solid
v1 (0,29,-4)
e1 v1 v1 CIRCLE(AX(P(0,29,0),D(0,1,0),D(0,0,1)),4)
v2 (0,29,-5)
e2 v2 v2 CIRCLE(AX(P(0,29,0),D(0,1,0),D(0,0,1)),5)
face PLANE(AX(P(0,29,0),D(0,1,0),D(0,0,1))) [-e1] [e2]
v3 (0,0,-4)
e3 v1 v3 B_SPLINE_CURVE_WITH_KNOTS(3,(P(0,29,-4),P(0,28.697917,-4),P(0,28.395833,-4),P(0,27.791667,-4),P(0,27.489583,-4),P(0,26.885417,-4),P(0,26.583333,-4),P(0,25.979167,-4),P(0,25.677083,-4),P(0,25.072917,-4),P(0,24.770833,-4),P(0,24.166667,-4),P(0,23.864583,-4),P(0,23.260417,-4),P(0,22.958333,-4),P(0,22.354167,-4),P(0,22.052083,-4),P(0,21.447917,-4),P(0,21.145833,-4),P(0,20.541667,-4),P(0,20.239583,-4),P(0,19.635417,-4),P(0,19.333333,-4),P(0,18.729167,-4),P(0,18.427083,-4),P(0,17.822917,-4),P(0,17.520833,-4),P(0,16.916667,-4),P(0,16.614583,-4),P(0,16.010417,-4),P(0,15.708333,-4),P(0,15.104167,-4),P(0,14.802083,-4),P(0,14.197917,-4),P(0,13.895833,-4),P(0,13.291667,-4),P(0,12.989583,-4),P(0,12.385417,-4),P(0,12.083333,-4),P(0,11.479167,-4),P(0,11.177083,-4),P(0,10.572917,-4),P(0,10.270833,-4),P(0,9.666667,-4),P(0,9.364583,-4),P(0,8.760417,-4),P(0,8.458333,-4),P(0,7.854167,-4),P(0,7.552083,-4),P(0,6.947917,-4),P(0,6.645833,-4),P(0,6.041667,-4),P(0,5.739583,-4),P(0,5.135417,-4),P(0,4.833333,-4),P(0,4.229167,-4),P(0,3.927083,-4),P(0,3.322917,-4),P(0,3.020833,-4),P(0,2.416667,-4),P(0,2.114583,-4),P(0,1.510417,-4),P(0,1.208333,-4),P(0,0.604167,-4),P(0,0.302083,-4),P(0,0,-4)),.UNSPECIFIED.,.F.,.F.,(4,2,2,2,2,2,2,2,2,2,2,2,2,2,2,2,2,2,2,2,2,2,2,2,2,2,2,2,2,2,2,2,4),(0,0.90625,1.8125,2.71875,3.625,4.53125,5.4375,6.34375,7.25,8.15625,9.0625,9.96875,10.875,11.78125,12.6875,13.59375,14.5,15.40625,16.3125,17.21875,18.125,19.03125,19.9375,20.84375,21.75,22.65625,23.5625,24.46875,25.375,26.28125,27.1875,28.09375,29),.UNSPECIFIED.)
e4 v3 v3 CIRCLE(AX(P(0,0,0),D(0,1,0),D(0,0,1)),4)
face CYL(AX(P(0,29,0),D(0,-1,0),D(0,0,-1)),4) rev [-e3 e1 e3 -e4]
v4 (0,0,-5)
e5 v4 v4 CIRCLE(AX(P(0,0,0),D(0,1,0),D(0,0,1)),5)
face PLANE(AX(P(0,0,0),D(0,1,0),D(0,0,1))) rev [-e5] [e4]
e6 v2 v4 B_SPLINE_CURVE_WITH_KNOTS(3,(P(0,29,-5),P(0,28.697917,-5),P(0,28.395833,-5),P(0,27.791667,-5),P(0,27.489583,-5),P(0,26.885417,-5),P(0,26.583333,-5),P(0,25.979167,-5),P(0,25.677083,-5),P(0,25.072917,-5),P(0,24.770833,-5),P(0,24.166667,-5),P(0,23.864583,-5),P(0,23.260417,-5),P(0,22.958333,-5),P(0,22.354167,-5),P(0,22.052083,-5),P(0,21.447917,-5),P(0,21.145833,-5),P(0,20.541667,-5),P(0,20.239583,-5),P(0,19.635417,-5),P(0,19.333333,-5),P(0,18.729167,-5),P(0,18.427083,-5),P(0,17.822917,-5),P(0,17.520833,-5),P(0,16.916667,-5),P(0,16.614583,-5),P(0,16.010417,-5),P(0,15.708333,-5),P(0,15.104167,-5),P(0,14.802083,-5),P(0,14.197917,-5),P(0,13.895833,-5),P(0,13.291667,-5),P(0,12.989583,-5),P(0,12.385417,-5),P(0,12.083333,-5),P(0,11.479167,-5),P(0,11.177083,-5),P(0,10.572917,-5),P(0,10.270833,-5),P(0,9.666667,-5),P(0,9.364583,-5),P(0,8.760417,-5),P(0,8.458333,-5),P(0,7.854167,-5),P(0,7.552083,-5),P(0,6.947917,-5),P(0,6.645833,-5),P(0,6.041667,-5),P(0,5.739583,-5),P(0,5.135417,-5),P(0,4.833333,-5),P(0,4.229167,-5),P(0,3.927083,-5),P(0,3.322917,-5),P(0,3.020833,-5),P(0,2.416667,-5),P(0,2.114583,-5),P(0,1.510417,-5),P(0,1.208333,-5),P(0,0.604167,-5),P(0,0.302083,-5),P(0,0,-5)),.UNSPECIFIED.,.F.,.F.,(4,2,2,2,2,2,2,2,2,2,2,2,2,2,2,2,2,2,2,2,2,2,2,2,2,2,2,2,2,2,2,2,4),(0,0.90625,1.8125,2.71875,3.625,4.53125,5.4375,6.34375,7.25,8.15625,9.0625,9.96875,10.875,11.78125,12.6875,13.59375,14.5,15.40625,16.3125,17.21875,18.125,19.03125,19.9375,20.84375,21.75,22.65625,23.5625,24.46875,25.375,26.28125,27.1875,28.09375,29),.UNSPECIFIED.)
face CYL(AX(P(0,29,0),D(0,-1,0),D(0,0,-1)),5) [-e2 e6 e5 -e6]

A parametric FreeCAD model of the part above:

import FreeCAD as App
import Part
import Sketcher

V = App.Vector

doc = App.newDocument("Part")
body = doc.addObject("PartDesign::Body", "Body")

sketch1 = body.newObject("Sketcher::SketchObject", "Sketch")
sketch1.AttachmentSupport = (doc.getObject("XZ_Plane"), [""])
sketch1.MapMode = "FlatFace"
sketch1.addGeometry(Part.Circle(V(0, 0, 0), V(0, 0, 1), 5), False)
sketch1.addGeometry(Part.Circle(V(0, 0, 0), V(0, 0, 1), 4), False)
sketch1.addConstraint(Sketcher.Constraint("Coincident", 0, 3, -1, 1))
sketch1.addConstraint(Sketcher.Constraint("Coincident", 1, 3, -1, 1))
sketch1.addConstraint(Sketcher.Constraint("Diameter", 0, 10.0))
sketch1.addConstraint(Sketcher.Constraint("Diameter", 1, 8.0))
pad1 = body.newObject("PartDesign::Pad", "Pad")
pad1.Profile = sketch1
pad1.Length = 29
pad1.Reversed = True

doc.recompute()
